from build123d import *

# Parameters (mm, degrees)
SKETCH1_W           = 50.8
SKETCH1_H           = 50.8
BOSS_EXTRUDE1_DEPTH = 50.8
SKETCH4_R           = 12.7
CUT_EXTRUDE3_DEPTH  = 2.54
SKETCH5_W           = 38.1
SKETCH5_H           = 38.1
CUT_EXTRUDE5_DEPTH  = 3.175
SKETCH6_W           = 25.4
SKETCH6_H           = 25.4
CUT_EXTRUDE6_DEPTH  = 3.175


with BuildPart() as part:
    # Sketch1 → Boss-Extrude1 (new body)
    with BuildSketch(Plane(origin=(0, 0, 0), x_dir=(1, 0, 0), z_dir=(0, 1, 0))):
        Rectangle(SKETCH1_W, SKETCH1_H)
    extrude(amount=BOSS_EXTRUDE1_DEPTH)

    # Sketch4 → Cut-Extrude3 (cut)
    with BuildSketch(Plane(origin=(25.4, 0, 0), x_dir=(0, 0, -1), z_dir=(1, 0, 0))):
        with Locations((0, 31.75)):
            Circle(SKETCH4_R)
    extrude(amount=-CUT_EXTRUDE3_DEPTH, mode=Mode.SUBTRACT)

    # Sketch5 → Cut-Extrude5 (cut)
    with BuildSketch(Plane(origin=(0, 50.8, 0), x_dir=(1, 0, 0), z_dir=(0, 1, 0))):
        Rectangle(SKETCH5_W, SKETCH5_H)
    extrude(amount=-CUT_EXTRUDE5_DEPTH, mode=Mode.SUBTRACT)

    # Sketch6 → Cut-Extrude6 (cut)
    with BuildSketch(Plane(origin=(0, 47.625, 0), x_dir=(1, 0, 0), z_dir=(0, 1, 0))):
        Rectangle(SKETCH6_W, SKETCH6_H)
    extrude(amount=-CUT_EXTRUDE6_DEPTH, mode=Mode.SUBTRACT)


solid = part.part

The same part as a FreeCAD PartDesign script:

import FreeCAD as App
import Part
import Sketcher
from FreeCAD import Vector
Q = App.Units.Quantity

doc = App.newDocument("Part")
params = doc.addObject("Spreadsheet::Sheet", "Params")
for row, (alias, value) in enumerate([
    ("sketch1_width", "2 in"),
    ("pad1_length", "2 in"),
    ("sketch2_diameter", "1 in"),
    ("pocket1_length", "0.1 in"),
    ("sketch3_width", "1.5 in"),
    ("pocket2_length", "0.125 in"),
    ("sketch4_width", "1 in"),
    ("pocket3_length", "0.125 in"),
], start=1):
    params.set(f"A{row}", alias)
    params.set(f"B{row}", "=" + value)
    params.setAlias(f"B{row}", alias)

body = doc.addObject("PartDesign::Body", "Body")

# Sketch on XZ plane
sketch1 = body.newObject("Sketcher::SketchObject", "Sketch")
sketch1.AttachmentSupport = (doc.getObject("XZ_Plane"), [""])
sketch1.MapMode = "FlatFace"
sketch1.addGeometry([
    Part.LineSegment(Vector(-25.4, -25.4, 0), Vector(-25.4, 25.4, 0)),
    Part.LineSegment(Vector(-25.4, 25.4, 0), Vector(25.4, 25.4, 0)),
    Part.LineSegment(Vector(25.4, 25.4, 0), Vector(25.4, -25.4, 0)),
    Part.LineSegment(Vector(25.4, -25.4, 0), Vector(-25.4, -25.4, 0)),
], False)
sketch1.addConstraint([
    Sketcher.Constraint("Coincident", 0, 2, 1, 1),
    Sketcher.Constraint("Coincident", 1, 2, 2, 1),
    Sketcher.Constraint("Coincident", 2, 2, 3, 1),
    Sketcher.Constraint("Coincident", 3, 2, 0, 1),
    Sketcher.Constraint("Vertical", 0),
    Sketcher.Constraint("Horizontal", 1),
    Sketcher.Constraint("Vertical", 2),
    Sketcher.Constraint("Horizontal", 3),
    Sketcher.Constraint("Symmetric", 0, 2, 2, 2, -1, 1),
    Sketcher.Constraint("Equal", 3, 0),
    Sketcher.Constraint("DistanceX", 1, 1, 1, 2, Q("2 in")),
])
sketch1.setExpression("Constraints[10]", "Params.sketch1_width")
pad1 = body.newObject("PartDesign::Pad", "Pad")
pad1.Profile = sketch1
pad1.setExpression("Length", "Params.pad1_length")
pad1.Reversed = True

# Sketch on YZ plane
sketch2 = body.newObject("Sketcher::SketchObject", "Sketch001")
sketch2.AttachmentSupport = (doc.getObject("YZ_Plane"), [""])
sketch2.MapMode = "FlatFace"
sketch2.AttachmentOffset = App.Placement(Vector(0, 0, 1 * 25.4), App.Rotation())
sketch2.addGeometry(Part.Circle(Vector(31.75, 0, 0), Vector(0, 0, 1), 12.7), False)
sketch2.addConstraint([
    Sketcher.Constraint("PointOnObject", 0, 3, -1),
    Sketcher.Constraint("Diameter", 0, Q("1 in")),
    Sketcher.Constraint("DistanceX", -1, 1, 0, 3, Q("1.25 in")),
])
sketch2.setExpression("Constraints[1]", "Params.sketch2_diameter")
pocket1 = body.newObject("PartDesign::Pocket", "Pocket")
pocket1.Profile = sketch2
pocket1.setExpression("Length", "Params.pocket1_length")

# Sketch on XZ plane
sketch3 = body.newObject("Sketcher::SketchObject", "Sketch002")
sketch3.AttachmentSupport = (doc.getObject("XZ_Plane"), [""])
sketch3.MapMode = "FlatFace"
sketch3.AttachmentOffset = App.Placement(Vector(0, 0, -2 * 25.4), App.Rotation())
sketch3.addGeometry([
    Part.LineSegment(Vector(-19.05, -19.05, 0), Vector(-19.05, 19.05, 0)),
    Part.LineSegment(Vector(-19.05, 19.05, 0), Vector(19.05, 19.05, 0)),
    Part.LineSegment(Vector(19.05, 19.05, 0), Vector(19.05, -19.05, 0)),
    Part.LineSegment(Vector(19.05, -19.05, 0), Vector(-19.05, -19.05, 0)),
], False)
sketch3.addConstraint([
    Sketcher.Constraint("Coincident", 0, 2, 1, 1),
    Sketcher.Constraint("Coincident", 1, 2, 2, 1),
    Sketcher.Constraint("Coincident", 2, 2, 3, 1),
    Sketcher.Constraint("Coincident", 3, 2, 0, 1),
    Sketcher.Constraint("Vertical", 0),
    Sketcher.Constraint("Horizontal", 1),
    Sketcher.Constraint("Vertical", 2),
    Sketcher.Constraint("Horizontal", 3),
    Sketcher.Constraint("Symmetric", 0, 2, 2, 2, -1, 1),
    Sketcher.Constraint("Equal", 3, 0),
    Sketcher.Constraint("DistanceX", 1, 1, 1, 2, Q("1.5 in")),
])
sketch3.setExpression("Constraints[10]", "Params.sketch3_width")
pocket2 = body.newObject("PartDesign::Pocket", "Pocket001")
pocket2.Profile = sketch3
pocket2.setExpression("Length", "Params.pocket2_length")
pocket2.Reversed = True

# Sketch on XZ plane
sketch4 = body.newObject("Sketcher::SketchObject", "Sketch003")
sketch4.AttachmentSupport = (doc.getObject("XZ_Plane"), [""])
sketch4.MapMode = "FlatFace"
sketch4.AttachmentOffset = App.Placement(Vector(0, 0, -1.875 * 25.4), App.Rotation())
sketch4.addGeometry([
    Part.LineSegment(Vector(-12.7, -12.7, 0), Vector(-12.7, 12.7, 0)),
    Part.LineSegment(Vector(-12.7, 12.7, 0), Vector(12.7, 12.7, 0)),
    Part.LineSegment(Vector(12.7, 12.7, 0), Vector(12.7, -12.7, 0)),
    Part.LineSegment(Vector(12.7, -12.7, 0), Vector(-12.7, -12.7, 0)),
], False)
sketch4.addConstraint([
    Sketcher.Constraint("Coincident", 0, 2, 1, 1),
    Sketcher.Constraint("Coincident", 1, 2, 2, 1),
    Sketcher.Constraint("Coincident", 2, 2, 3, 1),
    Sketcher.Constraint("Coincident", 3, 2, 0, 1),
    Sketcher.Constraint("Vertical", 0),
    Sketcher.Constraint("Horizontal", 1),
    Sketcher.Constraint("Vertical", 2),
    Sketcher.Constraint("Horizontal", 3),
    Sketcher.Constraint("Symmetric", 0, 2, 2, 2, -1, 1),
    Sketcher.Constraint("Equal", 3, 0),
    Sketcher.Constraint("DistanceX", 1, 1, 1, 2, Q("1 in")),
])
sketch4.setExpression("Constraints[10]", "Params.sketch4_width")
pocket3 = body.newObject("PartDesign::Pocket", "Pocket002")
pocket3.Profile = sketch4
pocket3.setExpression("Length", "Params.pocket3_length")
pocket3.Reversed = True

doc.recompute()
